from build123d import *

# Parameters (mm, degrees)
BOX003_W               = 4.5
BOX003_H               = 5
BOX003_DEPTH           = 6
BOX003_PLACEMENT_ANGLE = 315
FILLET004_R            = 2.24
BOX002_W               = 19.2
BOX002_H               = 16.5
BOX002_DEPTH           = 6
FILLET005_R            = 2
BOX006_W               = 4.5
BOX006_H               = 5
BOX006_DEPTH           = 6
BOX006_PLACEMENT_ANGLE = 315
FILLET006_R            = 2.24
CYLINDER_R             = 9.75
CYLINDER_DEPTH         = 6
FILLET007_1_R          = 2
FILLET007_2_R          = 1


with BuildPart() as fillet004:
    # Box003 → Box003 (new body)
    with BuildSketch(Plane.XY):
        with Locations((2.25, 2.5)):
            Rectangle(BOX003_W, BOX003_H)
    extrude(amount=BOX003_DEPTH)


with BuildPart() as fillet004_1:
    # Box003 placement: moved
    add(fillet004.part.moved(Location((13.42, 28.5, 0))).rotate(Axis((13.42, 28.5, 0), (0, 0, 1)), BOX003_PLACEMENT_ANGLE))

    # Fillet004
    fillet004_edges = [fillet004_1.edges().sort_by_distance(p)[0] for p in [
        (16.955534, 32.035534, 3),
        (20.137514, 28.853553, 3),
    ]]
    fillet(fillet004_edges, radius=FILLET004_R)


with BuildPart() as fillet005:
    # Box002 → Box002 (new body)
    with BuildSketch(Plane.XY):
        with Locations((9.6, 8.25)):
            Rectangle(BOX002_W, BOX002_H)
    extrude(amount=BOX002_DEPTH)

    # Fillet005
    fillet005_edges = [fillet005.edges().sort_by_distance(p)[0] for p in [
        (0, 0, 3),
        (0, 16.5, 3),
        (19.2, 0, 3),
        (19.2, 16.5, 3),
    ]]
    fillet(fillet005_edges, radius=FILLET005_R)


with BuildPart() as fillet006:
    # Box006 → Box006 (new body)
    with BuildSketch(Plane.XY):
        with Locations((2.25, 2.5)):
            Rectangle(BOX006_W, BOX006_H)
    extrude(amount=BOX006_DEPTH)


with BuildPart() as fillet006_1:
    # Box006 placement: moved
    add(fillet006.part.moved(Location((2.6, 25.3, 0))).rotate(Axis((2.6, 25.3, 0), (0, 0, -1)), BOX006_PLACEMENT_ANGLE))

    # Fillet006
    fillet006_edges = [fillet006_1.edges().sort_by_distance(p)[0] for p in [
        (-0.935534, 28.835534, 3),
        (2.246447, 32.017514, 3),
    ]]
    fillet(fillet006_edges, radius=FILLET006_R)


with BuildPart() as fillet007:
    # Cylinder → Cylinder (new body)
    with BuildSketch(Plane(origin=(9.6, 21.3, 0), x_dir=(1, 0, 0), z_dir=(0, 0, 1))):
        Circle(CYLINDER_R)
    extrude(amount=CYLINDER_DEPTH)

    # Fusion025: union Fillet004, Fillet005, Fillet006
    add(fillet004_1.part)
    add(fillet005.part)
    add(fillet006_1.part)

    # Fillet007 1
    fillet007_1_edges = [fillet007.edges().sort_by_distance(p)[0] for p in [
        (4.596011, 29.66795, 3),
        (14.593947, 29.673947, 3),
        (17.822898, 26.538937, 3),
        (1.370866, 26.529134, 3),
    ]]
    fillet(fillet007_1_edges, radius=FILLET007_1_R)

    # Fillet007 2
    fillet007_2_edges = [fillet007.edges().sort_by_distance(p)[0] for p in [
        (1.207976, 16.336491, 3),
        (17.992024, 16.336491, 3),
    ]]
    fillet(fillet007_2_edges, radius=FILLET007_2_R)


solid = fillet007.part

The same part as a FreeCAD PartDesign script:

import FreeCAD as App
import Part
import Sketcher
from FreeCAD import Vector


def edges_at(feature, points):
    """Names of the edges that pass closest to the given points."""
    edges = feature.Shape.Edges
    near = lambda p: min(range(len(edges)), key=lambda i: edges[i].distToShape(Part.Vertex(*p))[0])
    return sorted({f"Edge{near(p) + 1}" for p in points})


def add_polygon(sketch, points):
    """Adds a closed chain of lines whose ends are joined by coincident constraints."""
    first, n = sketch.GeometryCount, len(points)
    for a, b in zip(points, points[1:] + points[:1]):
        sketch.addGeometry(Part.LineSegment(App.Vector(*a, 0), App.Vector(*b, 0)), False)
    for i in range(n):
        sketch.addConstraint(Sketcher.Constraint("Coincident", first + i, 2, first + (i + 1) % n, 1))

doc = App.newDocument("Part")
body = doc.addObject("PartDesign::Body", "Body")

# Sketch on XY plane
sketch1 = doc.addObject("Sketcher::SketchObject", "Sketch")
body.addObject(sketch1)
sketch1.AttachmentSupport = (doc.XY_Plane, [""])
sketch1.MapMode = "FlatFace"
add_polygon(sketch1, [(0, 5), (0, 0), (4.5, 0), (4.5, 5)])  # lines 0-3
sketch1.addConstraint([
    Sketcher.Constraint("Vertical", 0),
    Sketcher.Constraint("Horizontal", 1),
    Sketcher.Constraint("Vertical", 2),
    Sketcher.Constraint("Horizontal", 3),
    Sketcher.Constraint("Coincident", 0, 2, -1, 1),
    Sketcher.Constraint("DistanceY", 0, 2, 0, 1, 5.0),
    Sketcher.Constraint("DistanceX", 1, 1, 1, 2, 4.5),
])
pad1 = doc.addObject("PartDesign::Pad", "Pad")
body.addObject(pad1)
pad1.Profile = sketch1
pad1.Length = 6
body2 = doc.addObject("PartDesign::Body", "Body001")
doc.recompute()

body.Placement = App.Placement(Vector(13.42, 28.5, 0), App.Rotation(Vector(0, 0, 1), 315))
boolean = doc.addObject("PartDesign::Boolean", "Boolean")
body2.addObject(boolean)
boolean.Type = "Fuse"
boolean.addObjects([body])
doc.recompute()

fillet = doc.addObject("PartDesign::Fillet", "Fillet")
body2.addObject(fillet)
fillet.Base = (boolean, edges_at(boolean, [(16.956, 32.036, 3), (20.138, 28.854, 3)]))
fillet.Radius = 2.24
body3 = doc.addObject("PartDesign::Body", "Body002")

# Sketch on XY plane
sketch2 = doc.addObject("Sketcher::SketchObject", "Sketch001")
body3.addObject(sketch2)
sketch2.AttachmentSupport = (doc.getObject("XY_Plane002"), [""])
sketch2.MapMode = "FlatFace"
add_polygon(sketch2, [(0, 16), (0, 0), (19, 0), (19, 16)])  # lines 0-3
sketch2.addConstraint([
    Sketcher.Constraint("Vertical", 0),
    Sketcher.Constraint("Horizontal", 1),
    Sketcher.Constraint("Vertical", 2),
    Sketcher.Constraint("Horizontal", 3),
    Sketcher.Constraint("Coincident", 0, 2, -1, 1),
    Sketcher.Constraint("DistanceX", 1, 1, 1, 2, 19.2),
    Sketcher.Constraint("DistanceY", 0, 2, 0, 1, 16.5),
])
pad2 = doc.addObject("PartDesign::Pad", "Pad001")
body3.addObject(pad2)
pad2.Profile = sketch2
pad2.Length = 6
doc.recompute()

fillet2 = doc.addObject("PartDesign::Fillet", "Fillet001")
body3.addObject(fillet2)
fillet2.Base = (pad2, edges_at(pad2, [
    (0, 0, 3),
    (0, 16.5, 3),
    (19.2, 0, 3),
    (19.2, 16.5, 3),
]))
fillet2.Radius = 2
body4 = doc.addObject("PartDesign::Body", "Body003")

# Sketch on XY plane
sketch3 = doc.addObject("Sketcher::SketchObject", "Sketch002")
body4.addObject(sketch3)
sketch3.AttachmentSupport = (doc.getObject("XY_Plane003"), [""])
sketch3.MapMode = "FlatFace"
add_polygon(sketch3, [(0, 5), (0, 0), (4.5, 0), (4.5, 5)])  # lines 0-3
sketch3.addConstraint([
    Sketcher.Constraint("Vertical", 0),
    Sketcher.Constraint("Horizontal", 1),
    Sketcher.Constraint("Vertical", 2),
    Sketcher.Constraint("Horizontal", 3),
    Sketcher.Constraint("Coincident", 0, 2, -1, 1),
    Sketcher.Constraint("DistanceY", 0, 2, 0, 1, 5.0),
    Sketcher.Constraint("DistanceX", 1, 1, 1, 2, 4.5),
])
pad3 = doc.addObject("PartDesign::Pad", "Pad002")
body4.addObject(pad3)
pad3.Profile = sketch3
pad3.Length = 6
body5 = doc.addObject("PartDesign::Body", "Body004")
doc.recompute()

body4.Placement = App.Placement(Vector(2.6, 25.3, 0), App.Rotation(Vector(0, 0, -1), 315))
boolean2 = doc.addObject("PartDesign::Boolean", "Boolean001")
body5.addObject(boolean2)
boolean2.Type = "Fuse"
boolean2.addObjects([body4])
doc.recompute()

fillet3 = doc.addObject("PartDesign::Fillet", "Fillet002")
body5.addObject(fillet3)
fillet3.Base = (boolean2, edges_at(boolean2, [(-0.936, 28.836, 3), (2.246, 32.018, 3)]))
fillet3.Radius = 2.24
body6 = doc.addObject("PartDesign::Body", "Body005")

# Sketch on XY plane
sketch4 = doc.addObject("Sketcher::SketchObject", "Sketch003")
body6.addObject(sketch4)
sketch4.AttachmentSupport = (doc.getObject("XY_Plane005"), [""])
sketch4.MapMode = "FlatFace"
sketch4.addGeometry(Part.Circle(Vector(10, 21, 0), Vector(0, 0, 1), 10), False)
sketch4.addConstraint([
    Sketcher.Constraint("Diameter", 0, 19.5),
    Sketcher.Constraint("DistanceX", -1, 1, 0, 3, 9.6),
    Sketcher.Constraint("DistanceY", -1, 1, 0, 3, 21.3),
])
pad4 = doc.addObject("PartDesign::Pad", "Pad003")
body6.addObject(pad4)
pad4.Profile = sketch4
pad4.Length = 6
doc.recompute()

boolean3 = doc.addObject("PartDesign::Boolean", "Boolean002")
body6.addObject(boolean3)
boolean3.Type = "Fuse"
boolean3.addObjects([body2])
doc.recompute()

boolean4 = doc.addObject("PartDesign::Boolean", "Boolean003")
body6.addObject(boolean4)
boolean4.Type = "Fuse"
boolean4.addObjects([body3])
doc.recompute()

boolean5 = doc.addObject("PartDesign::Boolean", "Boolean004")
body6.addObject(boolean5)
boolean5.Type = "Fuse"
boolean5.addObjects([body5])
doc.recompute()

fillet4 = doc.addObject("PartDesign::Fillet", "Fillet003")
body6.addObject(fillet4)
fillet4.Base = (boolean5, edges_at(boolean5, [
    (4.596, 29.668, 3),
    (14.594, 29.674, 3),
    (17.823, 26.539, 3),
    (1.371, 26.529, 3),
]))
fillet4.Radius = 2
doc.recompute()

fillet5 = doc.addObject("PartDesign::Fillet", "Fillet004")
body6.addObject(fillet5)
fillet5.Base = (fillet4, edges_at(fillet4, [(1.208, 16.336, 3), (17.992, 16.336, 3)]))
fillet5.Radius = 1

doc.recompute()
